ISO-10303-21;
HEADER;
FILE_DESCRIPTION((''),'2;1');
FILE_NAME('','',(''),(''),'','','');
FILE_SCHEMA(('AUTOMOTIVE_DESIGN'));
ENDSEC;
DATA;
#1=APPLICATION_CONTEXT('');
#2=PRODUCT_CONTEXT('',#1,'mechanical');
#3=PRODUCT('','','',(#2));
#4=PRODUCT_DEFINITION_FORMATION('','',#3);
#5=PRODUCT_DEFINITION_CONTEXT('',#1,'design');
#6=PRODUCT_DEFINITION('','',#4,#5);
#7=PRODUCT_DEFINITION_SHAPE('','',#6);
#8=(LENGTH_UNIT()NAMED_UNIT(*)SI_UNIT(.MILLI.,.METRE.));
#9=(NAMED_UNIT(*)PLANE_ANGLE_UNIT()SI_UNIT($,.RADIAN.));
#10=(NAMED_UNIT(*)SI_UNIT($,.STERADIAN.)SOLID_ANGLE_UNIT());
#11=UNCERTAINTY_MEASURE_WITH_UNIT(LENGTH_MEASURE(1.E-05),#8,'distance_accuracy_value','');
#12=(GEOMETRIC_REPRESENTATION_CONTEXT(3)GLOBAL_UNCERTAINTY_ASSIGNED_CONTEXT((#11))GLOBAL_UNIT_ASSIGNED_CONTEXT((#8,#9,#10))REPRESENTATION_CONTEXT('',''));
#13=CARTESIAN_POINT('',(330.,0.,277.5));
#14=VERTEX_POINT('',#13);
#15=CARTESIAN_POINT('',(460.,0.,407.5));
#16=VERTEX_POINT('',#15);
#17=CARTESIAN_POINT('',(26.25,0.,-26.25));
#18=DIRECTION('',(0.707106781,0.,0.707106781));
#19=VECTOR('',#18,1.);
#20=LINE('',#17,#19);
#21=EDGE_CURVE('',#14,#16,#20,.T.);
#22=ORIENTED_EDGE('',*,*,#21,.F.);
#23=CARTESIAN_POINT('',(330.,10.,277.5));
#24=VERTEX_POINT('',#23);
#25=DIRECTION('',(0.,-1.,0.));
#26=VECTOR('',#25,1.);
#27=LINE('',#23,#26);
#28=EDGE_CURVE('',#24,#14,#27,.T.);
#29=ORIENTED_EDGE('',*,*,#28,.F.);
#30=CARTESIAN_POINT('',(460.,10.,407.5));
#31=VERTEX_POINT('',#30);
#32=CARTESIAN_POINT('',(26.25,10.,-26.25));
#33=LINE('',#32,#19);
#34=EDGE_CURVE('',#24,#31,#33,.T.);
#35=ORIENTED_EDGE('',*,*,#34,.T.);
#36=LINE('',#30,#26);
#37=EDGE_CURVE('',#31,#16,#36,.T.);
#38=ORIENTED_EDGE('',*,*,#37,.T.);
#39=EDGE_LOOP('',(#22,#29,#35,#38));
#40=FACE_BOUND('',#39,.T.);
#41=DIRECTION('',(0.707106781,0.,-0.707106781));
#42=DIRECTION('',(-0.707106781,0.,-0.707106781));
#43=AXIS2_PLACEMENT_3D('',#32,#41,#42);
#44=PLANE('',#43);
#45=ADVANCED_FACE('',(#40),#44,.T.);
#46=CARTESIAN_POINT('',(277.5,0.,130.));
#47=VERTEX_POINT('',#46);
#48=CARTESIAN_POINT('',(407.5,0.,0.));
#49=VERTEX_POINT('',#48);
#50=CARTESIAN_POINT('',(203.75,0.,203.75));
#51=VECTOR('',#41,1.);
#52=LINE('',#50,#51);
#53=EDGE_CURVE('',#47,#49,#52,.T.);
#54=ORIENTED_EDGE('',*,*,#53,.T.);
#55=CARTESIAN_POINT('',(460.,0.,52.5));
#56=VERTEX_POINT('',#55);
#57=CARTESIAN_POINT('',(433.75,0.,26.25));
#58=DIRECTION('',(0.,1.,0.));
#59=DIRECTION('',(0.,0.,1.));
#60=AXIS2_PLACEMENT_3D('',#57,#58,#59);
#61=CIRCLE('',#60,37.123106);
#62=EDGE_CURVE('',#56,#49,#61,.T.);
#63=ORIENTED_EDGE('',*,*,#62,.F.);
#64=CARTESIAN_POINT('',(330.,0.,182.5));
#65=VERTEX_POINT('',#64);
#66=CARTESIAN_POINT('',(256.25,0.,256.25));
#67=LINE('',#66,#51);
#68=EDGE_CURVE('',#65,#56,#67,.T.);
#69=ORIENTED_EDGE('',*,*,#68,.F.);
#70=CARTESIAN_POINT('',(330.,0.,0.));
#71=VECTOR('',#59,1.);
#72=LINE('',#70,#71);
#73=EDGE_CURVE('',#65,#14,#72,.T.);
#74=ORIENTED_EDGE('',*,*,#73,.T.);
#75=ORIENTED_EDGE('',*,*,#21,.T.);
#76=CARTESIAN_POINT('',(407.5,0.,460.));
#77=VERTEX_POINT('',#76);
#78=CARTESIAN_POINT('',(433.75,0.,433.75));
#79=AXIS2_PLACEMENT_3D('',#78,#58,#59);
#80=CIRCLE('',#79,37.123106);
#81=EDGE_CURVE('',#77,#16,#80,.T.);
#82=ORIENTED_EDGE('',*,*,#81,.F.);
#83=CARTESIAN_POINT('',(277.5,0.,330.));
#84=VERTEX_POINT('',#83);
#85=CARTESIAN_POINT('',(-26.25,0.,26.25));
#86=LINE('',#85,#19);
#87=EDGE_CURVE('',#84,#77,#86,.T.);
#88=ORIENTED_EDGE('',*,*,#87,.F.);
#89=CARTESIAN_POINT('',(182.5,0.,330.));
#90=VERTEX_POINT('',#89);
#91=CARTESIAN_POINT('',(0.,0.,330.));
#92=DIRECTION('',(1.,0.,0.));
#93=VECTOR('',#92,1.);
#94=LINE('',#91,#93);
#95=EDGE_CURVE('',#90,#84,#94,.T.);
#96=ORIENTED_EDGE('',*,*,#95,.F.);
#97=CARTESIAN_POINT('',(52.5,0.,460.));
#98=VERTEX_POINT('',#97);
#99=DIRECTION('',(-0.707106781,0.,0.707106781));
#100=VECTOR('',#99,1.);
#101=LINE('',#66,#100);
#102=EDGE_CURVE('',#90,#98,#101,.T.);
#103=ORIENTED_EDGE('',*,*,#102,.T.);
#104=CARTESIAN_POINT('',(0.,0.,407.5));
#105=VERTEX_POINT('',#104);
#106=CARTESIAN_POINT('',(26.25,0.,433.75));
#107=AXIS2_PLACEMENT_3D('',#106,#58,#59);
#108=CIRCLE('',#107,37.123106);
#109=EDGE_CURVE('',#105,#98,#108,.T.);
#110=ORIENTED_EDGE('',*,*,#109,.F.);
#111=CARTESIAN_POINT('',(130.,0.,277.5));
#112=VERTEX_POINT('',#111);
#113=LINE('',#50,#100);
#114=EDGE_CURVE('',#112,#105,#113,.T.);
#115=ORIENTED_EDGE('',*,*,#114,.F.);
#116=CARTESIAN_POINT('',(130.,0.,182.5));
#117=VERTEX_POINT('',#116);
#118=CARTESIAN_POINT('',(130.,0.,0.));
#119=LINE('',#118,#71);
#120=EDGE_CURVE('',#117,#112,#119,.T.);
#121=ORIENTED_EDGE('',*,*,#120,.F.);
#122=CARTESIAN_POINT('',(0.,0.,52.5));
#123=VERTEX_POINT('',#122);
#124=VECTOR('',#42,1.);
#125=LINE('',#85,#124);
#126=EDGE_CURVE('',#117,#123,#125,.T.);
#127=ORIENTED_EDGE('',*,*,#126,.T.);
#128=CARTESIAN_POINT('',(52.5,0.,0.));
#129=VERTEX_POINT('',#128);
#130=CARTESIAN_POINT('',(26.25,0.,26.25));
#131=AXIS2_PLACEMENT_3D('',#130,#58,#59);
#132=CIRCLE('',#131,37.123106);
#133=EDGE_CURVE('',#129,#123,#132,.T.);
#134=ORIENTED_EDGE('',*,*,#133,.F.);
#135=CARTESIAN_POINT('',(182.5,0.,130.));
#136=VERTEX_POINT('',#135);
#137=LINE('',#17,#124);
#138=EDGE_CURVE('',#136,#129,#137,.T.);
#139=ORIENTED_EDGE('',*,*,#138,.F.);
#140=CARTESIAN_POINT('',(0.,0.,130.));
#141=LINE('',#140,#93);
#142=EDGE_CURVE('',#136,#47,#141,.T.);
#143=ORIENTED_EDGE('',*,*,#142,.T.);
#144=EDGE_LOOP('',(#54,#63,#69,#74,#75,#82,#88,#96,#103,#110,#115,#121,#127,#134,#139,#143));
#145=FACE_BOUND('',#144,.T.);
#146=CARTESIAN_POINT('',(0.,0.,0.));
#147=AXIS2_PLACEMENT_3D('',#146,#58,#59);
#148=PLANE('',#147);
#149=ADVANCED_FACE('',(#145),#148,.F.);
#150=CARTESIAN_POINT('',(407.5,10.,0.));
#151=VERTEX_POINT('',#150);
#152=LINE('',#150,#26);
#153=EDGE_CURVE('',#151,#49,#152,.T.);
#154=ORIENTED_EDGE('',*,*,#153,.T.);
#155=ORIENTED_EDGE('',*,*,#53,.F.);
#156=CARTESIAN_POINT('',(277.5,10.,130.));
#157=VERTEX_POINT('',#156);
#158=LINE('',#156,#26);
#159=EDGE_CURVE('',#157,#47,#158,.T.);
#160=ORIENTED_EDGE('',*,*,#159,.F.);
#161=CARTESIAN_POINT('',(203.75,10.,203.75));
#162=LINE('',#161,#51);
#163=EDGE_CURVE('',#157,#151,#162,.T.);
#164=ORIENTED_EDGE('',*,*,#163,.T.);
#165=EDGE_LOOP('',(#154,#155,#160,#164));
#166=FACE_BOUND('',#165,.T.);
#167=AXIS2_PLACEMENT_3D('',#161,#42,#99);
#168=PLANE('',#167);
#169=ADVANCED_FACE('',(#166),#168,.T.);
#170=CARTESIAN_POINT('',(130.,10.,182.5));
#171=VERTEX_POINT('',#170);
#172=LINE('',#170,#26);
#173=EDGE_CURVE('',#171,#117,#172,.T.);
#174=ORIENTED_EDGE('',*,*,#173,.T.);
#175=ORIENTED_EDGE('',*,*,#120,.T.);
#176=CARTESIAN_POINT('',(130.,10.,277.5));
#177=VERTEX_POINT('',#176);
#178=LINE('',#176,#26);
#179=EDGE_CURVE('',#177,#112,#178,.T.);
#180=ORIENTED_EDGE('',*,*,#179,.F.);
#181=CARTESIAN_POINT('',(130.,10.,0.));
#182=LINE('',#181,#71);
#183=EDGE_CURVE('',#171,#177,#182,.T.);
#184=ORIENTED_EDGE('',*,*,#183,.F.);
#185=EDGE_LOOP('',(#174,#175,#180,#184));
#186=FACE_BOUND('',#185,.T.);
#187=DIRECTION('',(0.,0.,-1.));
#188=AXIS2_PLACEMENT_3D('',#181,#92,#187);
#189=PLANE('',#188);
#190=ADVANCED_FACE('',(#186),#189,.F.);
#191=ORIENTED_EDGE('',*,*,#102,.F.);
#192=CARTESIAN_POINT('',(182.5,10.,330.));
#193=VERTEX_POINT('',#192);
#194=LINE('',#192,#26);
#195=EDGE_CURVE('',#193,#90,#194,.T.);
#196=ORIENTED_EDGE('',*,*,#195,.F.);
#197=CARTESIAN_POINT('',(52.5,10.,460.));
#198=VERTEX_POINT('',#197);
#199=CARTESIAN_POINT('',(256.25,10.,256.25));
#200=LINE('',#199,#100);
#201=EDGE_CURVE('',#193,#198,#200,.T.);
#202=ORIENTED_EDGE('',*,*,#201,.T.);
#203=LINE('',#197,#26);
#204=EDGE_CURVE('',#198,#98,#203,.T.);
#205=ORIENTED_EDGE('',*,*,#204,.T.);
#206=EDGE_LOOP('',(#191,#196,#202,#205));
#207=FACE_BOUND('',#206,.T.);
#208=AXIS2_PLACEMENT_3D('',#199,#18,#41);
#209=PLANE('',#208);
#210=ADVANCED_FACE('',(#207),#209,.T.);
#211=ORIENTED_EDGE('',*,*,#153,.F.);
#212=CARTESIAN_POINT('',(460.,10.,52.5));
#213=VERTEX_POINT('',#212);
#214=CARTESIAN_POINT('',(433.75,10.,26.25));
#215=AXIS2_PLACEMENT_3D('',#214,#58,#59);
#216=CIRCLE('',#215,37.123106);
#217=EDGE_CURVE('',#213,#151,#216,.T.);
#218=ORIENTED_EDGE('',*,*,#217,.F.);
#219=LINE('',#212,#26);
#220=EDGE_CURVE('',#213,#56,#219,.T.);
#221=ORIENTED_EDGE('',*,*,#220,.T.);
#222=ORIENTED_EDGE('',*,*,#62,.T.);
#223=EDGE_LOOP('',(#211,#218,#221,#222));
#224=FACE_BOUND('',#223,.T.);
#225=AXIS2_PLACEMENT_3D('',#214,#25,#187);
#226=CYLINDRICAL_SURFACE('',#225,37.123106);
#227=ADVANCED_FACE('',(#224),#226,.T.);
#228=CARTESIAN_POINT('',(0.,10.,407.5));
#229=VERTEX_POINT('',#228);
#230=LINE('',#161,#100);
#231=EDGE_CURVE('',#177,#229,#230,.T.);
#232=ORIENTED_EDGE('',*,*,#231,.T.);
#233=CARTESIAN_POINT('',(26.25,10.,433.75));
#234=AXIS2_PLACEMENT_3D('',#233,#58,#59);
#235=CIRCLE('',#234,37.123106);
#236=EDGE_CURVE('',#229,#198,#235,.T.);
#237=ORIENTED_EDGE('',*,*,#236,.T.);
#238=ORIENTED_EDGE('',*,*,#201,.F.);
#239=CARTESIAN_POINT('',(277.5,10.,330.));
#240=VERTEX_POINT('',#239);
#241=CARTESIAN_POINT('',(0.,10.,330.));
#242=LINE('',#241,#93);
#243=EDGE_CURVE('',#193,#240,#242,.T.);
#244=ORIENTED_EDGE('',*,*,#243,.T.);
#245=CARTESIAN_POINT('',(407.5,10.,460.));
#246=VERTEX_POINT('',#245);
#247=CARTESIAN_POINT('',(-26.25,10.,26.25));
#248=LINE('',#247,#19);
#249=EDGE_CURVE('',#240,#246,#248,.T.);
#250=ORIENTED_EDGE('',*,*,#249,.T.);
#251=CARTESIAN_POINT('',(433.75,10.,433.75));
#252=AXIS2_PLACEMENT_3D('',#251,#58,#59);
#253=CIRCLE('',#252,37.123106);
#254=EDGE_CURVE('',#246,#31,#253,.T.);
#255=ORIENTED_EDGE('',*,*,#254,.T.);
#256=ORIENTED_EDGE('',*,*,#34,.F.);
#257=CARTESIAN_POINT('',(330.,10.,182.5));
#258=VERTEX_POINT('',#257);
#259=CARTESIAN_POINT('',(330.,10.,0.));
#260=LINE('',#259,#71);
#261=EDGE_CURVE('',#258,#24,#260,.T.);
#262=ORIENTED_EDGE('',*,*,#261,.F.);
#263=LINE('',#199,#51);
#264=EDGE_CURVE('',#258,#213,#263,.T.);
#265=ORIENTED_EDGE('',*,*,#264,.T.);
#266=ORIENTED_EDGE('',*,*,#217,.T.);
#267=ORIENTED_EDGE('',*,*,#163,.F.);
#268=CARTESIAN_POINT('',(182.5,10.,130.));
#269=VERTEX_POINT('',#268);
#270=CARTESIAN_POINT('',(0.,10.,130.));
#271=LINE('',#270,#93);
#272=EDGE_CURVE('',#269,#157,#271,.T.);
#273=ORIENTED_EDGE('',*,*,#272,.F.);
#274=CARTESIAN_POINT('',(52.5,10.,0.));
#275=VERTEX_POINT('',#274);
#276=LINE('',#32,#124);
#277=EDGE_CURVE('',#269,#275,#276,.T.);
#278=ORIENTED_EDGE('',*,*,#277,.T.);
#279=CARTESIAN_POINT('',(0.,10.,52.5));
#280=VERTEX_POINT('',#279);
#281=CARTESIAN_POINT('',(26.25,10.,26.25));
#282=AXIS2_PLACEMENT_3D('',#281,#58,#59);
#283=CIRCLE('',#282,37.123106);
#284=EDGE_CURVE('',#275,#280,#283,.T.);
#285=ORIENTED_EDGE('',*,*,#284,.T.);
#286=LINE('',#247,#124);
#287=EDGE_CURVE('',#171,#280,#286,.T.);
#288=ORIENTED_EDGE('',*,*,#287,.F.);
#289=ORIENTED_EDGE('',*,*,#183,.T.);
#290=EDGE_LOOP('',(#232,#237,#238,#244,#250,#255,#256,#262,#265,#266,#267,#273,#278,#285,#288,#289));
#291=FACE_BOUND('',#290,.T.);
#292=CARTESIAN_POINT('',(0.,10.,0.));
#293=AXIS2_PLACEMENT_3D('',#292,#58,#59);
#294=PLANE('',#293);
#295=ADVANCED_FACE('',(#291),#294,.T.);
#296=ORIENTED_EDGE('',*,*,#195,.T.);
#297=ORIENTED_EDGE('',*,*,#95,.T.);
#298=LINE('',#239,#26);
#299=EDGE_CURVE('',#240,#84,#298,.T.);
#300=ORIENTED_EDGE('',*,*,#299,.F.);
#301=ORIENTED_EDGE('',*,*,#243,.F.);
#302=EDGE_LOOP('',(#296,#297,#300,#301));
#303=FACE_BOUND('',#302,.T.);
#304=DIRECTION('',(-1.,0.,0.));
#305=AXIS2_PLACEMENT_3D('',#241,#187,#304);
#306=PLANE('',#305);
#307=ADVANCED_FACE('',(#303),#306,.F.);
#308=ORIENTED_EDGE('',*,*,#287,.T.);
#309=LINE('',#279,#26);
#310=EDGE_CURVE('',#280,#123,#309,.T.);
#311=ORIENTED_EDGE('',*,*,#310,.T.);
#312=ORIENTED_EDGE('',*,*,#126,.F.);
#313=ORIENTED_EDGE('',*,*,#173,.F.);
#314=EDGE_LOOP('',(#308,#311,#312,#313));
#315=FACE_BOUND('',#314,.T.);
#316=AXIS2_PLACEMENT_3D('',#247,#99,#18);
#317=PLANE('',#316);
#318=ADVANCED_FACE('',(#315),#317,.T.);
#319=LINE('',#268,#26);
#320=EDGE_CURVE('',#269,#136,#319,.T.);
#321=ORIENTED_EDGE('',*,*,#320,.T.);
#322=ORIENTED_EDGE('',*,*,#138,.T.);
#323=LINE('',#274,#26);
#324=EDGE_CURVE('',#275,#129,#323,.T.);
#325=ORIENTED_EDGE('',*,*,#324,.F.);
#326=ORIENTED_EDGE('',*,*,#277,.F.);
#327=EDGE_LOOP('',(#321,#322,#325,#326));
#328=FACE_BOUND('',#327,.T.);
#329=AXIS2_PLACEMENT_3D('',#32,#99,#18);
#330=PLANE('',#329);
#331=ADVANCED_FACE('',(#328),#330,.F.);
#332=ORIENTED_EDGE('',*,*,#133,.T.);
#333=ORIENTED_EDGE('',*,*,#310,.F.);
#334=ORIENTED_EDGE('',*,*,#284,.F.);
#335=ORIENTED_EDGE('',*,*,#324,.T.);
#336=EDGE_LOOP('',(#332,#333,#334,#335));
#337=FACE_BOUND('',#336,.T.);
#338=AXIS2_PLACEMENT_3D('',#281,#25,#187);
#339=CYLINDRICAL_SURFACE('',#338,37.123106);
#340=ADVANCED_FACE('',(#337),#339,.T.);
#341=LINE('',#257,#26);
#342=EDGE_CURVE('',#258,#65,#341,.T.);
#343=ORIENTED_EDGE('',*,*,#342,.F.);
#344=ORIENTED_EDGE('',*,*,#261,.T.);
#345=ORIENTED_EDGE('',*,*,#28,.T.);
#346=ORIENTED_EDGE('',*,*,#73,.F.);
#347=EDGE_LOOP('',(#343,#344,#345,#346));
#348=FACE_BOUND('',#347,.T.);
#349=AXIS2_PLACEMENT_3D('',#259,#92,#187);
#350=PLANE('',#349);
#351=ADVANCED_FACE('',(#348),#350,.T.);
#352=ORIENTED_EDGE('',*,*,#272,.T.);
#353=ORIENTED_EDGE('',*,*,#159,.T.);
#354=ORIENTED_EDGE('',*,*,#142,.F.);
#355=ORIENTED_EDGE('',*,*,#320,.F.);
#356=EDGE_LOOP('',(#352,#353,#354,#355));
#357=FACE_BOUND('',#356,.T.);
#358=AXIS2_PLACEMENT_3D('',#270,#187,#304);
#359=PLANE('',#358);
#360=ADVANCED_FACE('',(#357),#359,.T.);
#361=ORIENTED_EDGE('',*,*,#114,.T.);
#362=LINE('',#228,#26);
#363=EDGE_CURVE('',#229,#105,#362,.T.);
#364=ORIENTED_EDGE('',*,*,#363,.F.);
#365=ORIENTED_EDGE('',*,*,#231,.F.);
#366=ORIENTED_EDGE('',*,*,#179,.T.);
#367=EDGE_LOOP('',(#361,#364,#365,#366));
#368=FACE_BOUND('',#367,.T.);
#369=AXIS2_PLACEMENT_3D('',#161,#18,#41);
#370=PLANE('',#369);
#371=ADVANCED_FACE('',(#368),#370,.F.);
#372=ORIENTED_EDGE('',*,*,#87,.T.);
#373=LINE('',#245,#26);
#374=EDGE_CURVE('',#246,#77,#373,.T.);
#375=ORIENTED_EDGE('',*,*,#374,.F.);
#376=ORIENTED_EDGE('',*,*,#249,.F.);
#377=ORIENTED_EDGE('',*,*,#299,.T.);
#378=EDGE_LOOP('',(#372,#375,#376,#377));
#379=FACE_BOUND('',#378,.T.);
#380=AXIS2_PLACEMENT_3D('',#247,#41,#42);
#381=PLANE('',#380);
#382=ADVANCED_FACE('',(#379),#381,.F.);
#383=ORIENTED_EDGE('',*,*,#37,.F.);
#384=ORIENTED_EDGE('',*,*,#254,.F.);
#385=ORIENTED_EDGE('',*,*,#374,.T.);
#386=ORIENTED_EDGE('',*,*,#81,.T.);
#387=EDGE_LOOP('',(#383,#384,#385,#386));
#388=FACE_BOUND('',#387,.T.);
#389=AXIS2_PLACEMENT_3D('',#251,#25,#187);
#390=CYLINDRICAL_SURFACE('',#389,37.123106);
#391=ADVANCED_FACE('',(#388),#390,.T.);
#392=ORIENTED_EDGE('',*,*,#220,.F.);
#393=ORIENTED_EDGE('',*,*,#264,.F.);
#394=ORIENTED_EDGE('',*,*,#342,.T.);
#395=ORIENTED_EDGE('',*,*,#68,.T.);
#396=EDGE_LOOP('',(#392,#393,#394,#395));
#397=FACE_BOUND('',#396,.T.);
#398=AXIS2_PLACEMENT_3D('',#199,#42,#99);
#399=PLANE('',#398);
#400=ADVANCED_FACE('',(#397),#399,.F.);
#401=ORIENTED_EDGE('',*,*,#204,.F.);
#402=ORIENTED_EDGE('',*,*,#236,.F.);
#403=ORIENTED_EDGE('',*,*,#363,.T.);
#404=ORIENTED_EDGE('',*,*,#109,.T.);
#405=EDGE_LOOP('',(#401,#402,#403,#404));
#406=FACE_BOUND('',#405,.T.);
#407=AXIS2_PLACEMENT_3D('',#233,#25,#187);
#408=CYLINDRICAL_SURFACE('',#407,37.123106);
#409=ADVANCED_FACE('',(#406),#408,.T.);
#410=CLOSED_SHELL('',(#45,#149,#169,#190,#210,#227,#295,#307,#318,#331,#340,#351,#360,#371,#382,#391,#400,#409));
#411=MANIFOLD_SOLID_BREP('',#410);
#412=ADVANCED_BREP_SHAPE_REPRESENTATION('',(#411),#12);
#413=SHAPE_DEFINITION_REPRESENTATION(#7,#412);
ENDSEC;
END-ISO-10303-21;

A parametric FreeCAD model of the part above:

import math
import FreeCAD as App
import Part
import Sketcher

V = App.Vector
Q = App.Units.Quantity

doc = App.newDocument("Part")
body = doc.addObject("PartDesign::Body", "Body")

# Sketch on XZ plane
sketch1 = body.newObject("Sketcher::SketchObject", "Sketch")
sketch1.AttachmentSupport = (doc.getObject("XZ_Plane"), [""])
sketch1.MapMode = "FlatFace"
sketch1.addGeometry([
    Part.LineSegment(V(130, 182.5, 0), V(130, 277.5, 0)),  # 0
    Part.LineSegment(V(130, 277.5, 0), V(0, 407.5, 0)),  # 1
    Part.ArcOfCircle(Part.Circle(V(26.25, 433.75, 0), V(0, 0, 1), 37.123106), math.radians(45), math.radians(225)),  # 2
    Part.LineSegment(V(52.5, 460, 0), V(182.5, 330, 0)),  # 3
    Part.LineSegment(V(182.5, 330, 0), V(277.5, 330, 0)),  # 4
    Part.LineSegment(V(277.5, 330, 0), V(407.5, 460, 0)),  # 5
    Part.ArcOfCircle(Part.Circle(V(433.75, 433.75, 0), V(0, 0, 1), 37.123106), math.radians(-45), math.radians(135)),  # 6
    Part.LineSegment(V(460, 407.5, 0), V(330, 277.5, 0)),  # 7
    Part.LineSegment(V(330, 277.5, 0), V(330, 182.5, 0)),  # 8
    Part.LineSegment(V(330, 182.5, 0), V(460, 52.5, 0)),  # 9
    Part.ArcOfCircle(Part.Circle(V(433.75, 26.25, 0), V(0, 0, 1), 37.123106), math.radians(-135), math.radians(45)),  # 10
    Part.LineSegment(V(407.5, 0, 0), V(277.5, 130, 0)),  # 11
    Part.LineSegment(V(277.5, 130, 0), V(182.5, 130, 0)),  # 12
    Part.LineSegment(V(182.5, 130, 0), V(52.5, 0, 0)),  # 13
    Part.ArcOfCircle(Part.Circle(V(26.25, 26.25, 0), V(0, 0, 1), 37.123106), math.radians(135), math.radians(315)),  # 14
    Part.LineSegment(V(0, 52.5, 0), V(130, 182.5, 0)),  # 15
], False)
sketch1.addConstraint([
    Sketcher.Constraint("Coincident", 0, 2, 1, 1),
    Sketcher.Constraint("Tangent", 1, 2, 2, 2),
    Sketcher.Constraint("Tangent", 2, 1, 3, 1),
    Sketcher.Constraint("Coincident", 3, 2, 4, 1),
    Sketcher.Constraint("Coincident", 4, 2, 5, 1),
    Sketcher.Constraint("Tangent", 5, 2, 6, 2),
    Sketcher.Constraint("Tangent", 6, 1, 7, 1),
    Sketcher.Constraint("Coincident", 7, 2, 8, 1),
    Sketcher.Constraint("Coincident", 8, 2, 9, 1),
    Sketcher.Constraint("Tangent", 9, 2, 10, 2),
    Sketcher.Constraint("Tangent", 10, 1, 11, 1),
    Sketcher.Constraint("Coincident", 11, 2, 12, 1),
    Sketcher.Constraint("Coincident", 12, 2, 13, 1),
    Sketcher.Constraint("Tangent", 13, 2, 14, 2),
    Sketcher.Constraint("Tangent", 14, 1, 15, 1),
    Sketcher.Constraint("Coincident", 15, 2, 0, 1),
    Sketcher.Constraint("Vertical", 0),
    Sketcher.Constraint("Horizontal", 4),
    Sketcher.Constraint("Vertical", 8),
    Sketcher.Constraint("Horizontal", 12),
    Sketcher.Constraint("Equal", 2, 6),
    Sketcher.Constraint("Equal", 6, 10),
    Sketcher.Constraint("Equal", 10, 14),
    Sketcher.Constraint("PointOnObject", 1, 2, -2),
    Sketcher.Constraint("PointOnObject", 10, 1, -1),
    Sketcher.Constraint("PointOnObject", 13, 2, -1),
    Sketcher.Constraint("PointOnObject", 14, 1, -2),
    Sketcher.Constraint("Parallel", 1, 3),
    Sketcher.Constraint("Perpendicular", 3, 5),
    Sketcher.Constraint("Parallel", 5, 7),
    Sketcher.Constraint("Perpendicular", 7, 9),
    Sketcher.Constraint("Parallel", 9, 11),
    Sketcher.Constraint("Perpendicular", 11, 13),
    Sketcher.Constraint("Parallel", 13, 15),
    Sketcher.Constraint("Horizontal", 2, 3, 6, 3),
    Sketcher.Constraint("Horizontal", 10, 3, 14, 3),
    Sketcher.Constraint("Horizontal", 0, 2, 7, 2),
    Sketcher.Constraint("Horizontal", 8, 2, 15, 2),
    Sketcher.Constraint("Vertical", 4, 2, 11, 2),
    Sketcher.Constraint("Equal", 12, 0),
    Sketcher.Constraint("Equal", 1, 3),
    Sketcher.Constraint("DistanceX", 4, 1, 4, 2, Q("95 mm")),
    Sketcher.Constraint("DistanceX", -1, 1, 0, 2, Q("130 mm")),
    Sketcher.Constraint("DistanceY", -1, 1, 2, 1, Q("460 mm")),
])
pad1 = body.newObject("PartDesign::Pad", "Pad")
pad1.Profile = sketch1
pad1.Length = 10
pad1.Reversed = True

doc.recompute()
